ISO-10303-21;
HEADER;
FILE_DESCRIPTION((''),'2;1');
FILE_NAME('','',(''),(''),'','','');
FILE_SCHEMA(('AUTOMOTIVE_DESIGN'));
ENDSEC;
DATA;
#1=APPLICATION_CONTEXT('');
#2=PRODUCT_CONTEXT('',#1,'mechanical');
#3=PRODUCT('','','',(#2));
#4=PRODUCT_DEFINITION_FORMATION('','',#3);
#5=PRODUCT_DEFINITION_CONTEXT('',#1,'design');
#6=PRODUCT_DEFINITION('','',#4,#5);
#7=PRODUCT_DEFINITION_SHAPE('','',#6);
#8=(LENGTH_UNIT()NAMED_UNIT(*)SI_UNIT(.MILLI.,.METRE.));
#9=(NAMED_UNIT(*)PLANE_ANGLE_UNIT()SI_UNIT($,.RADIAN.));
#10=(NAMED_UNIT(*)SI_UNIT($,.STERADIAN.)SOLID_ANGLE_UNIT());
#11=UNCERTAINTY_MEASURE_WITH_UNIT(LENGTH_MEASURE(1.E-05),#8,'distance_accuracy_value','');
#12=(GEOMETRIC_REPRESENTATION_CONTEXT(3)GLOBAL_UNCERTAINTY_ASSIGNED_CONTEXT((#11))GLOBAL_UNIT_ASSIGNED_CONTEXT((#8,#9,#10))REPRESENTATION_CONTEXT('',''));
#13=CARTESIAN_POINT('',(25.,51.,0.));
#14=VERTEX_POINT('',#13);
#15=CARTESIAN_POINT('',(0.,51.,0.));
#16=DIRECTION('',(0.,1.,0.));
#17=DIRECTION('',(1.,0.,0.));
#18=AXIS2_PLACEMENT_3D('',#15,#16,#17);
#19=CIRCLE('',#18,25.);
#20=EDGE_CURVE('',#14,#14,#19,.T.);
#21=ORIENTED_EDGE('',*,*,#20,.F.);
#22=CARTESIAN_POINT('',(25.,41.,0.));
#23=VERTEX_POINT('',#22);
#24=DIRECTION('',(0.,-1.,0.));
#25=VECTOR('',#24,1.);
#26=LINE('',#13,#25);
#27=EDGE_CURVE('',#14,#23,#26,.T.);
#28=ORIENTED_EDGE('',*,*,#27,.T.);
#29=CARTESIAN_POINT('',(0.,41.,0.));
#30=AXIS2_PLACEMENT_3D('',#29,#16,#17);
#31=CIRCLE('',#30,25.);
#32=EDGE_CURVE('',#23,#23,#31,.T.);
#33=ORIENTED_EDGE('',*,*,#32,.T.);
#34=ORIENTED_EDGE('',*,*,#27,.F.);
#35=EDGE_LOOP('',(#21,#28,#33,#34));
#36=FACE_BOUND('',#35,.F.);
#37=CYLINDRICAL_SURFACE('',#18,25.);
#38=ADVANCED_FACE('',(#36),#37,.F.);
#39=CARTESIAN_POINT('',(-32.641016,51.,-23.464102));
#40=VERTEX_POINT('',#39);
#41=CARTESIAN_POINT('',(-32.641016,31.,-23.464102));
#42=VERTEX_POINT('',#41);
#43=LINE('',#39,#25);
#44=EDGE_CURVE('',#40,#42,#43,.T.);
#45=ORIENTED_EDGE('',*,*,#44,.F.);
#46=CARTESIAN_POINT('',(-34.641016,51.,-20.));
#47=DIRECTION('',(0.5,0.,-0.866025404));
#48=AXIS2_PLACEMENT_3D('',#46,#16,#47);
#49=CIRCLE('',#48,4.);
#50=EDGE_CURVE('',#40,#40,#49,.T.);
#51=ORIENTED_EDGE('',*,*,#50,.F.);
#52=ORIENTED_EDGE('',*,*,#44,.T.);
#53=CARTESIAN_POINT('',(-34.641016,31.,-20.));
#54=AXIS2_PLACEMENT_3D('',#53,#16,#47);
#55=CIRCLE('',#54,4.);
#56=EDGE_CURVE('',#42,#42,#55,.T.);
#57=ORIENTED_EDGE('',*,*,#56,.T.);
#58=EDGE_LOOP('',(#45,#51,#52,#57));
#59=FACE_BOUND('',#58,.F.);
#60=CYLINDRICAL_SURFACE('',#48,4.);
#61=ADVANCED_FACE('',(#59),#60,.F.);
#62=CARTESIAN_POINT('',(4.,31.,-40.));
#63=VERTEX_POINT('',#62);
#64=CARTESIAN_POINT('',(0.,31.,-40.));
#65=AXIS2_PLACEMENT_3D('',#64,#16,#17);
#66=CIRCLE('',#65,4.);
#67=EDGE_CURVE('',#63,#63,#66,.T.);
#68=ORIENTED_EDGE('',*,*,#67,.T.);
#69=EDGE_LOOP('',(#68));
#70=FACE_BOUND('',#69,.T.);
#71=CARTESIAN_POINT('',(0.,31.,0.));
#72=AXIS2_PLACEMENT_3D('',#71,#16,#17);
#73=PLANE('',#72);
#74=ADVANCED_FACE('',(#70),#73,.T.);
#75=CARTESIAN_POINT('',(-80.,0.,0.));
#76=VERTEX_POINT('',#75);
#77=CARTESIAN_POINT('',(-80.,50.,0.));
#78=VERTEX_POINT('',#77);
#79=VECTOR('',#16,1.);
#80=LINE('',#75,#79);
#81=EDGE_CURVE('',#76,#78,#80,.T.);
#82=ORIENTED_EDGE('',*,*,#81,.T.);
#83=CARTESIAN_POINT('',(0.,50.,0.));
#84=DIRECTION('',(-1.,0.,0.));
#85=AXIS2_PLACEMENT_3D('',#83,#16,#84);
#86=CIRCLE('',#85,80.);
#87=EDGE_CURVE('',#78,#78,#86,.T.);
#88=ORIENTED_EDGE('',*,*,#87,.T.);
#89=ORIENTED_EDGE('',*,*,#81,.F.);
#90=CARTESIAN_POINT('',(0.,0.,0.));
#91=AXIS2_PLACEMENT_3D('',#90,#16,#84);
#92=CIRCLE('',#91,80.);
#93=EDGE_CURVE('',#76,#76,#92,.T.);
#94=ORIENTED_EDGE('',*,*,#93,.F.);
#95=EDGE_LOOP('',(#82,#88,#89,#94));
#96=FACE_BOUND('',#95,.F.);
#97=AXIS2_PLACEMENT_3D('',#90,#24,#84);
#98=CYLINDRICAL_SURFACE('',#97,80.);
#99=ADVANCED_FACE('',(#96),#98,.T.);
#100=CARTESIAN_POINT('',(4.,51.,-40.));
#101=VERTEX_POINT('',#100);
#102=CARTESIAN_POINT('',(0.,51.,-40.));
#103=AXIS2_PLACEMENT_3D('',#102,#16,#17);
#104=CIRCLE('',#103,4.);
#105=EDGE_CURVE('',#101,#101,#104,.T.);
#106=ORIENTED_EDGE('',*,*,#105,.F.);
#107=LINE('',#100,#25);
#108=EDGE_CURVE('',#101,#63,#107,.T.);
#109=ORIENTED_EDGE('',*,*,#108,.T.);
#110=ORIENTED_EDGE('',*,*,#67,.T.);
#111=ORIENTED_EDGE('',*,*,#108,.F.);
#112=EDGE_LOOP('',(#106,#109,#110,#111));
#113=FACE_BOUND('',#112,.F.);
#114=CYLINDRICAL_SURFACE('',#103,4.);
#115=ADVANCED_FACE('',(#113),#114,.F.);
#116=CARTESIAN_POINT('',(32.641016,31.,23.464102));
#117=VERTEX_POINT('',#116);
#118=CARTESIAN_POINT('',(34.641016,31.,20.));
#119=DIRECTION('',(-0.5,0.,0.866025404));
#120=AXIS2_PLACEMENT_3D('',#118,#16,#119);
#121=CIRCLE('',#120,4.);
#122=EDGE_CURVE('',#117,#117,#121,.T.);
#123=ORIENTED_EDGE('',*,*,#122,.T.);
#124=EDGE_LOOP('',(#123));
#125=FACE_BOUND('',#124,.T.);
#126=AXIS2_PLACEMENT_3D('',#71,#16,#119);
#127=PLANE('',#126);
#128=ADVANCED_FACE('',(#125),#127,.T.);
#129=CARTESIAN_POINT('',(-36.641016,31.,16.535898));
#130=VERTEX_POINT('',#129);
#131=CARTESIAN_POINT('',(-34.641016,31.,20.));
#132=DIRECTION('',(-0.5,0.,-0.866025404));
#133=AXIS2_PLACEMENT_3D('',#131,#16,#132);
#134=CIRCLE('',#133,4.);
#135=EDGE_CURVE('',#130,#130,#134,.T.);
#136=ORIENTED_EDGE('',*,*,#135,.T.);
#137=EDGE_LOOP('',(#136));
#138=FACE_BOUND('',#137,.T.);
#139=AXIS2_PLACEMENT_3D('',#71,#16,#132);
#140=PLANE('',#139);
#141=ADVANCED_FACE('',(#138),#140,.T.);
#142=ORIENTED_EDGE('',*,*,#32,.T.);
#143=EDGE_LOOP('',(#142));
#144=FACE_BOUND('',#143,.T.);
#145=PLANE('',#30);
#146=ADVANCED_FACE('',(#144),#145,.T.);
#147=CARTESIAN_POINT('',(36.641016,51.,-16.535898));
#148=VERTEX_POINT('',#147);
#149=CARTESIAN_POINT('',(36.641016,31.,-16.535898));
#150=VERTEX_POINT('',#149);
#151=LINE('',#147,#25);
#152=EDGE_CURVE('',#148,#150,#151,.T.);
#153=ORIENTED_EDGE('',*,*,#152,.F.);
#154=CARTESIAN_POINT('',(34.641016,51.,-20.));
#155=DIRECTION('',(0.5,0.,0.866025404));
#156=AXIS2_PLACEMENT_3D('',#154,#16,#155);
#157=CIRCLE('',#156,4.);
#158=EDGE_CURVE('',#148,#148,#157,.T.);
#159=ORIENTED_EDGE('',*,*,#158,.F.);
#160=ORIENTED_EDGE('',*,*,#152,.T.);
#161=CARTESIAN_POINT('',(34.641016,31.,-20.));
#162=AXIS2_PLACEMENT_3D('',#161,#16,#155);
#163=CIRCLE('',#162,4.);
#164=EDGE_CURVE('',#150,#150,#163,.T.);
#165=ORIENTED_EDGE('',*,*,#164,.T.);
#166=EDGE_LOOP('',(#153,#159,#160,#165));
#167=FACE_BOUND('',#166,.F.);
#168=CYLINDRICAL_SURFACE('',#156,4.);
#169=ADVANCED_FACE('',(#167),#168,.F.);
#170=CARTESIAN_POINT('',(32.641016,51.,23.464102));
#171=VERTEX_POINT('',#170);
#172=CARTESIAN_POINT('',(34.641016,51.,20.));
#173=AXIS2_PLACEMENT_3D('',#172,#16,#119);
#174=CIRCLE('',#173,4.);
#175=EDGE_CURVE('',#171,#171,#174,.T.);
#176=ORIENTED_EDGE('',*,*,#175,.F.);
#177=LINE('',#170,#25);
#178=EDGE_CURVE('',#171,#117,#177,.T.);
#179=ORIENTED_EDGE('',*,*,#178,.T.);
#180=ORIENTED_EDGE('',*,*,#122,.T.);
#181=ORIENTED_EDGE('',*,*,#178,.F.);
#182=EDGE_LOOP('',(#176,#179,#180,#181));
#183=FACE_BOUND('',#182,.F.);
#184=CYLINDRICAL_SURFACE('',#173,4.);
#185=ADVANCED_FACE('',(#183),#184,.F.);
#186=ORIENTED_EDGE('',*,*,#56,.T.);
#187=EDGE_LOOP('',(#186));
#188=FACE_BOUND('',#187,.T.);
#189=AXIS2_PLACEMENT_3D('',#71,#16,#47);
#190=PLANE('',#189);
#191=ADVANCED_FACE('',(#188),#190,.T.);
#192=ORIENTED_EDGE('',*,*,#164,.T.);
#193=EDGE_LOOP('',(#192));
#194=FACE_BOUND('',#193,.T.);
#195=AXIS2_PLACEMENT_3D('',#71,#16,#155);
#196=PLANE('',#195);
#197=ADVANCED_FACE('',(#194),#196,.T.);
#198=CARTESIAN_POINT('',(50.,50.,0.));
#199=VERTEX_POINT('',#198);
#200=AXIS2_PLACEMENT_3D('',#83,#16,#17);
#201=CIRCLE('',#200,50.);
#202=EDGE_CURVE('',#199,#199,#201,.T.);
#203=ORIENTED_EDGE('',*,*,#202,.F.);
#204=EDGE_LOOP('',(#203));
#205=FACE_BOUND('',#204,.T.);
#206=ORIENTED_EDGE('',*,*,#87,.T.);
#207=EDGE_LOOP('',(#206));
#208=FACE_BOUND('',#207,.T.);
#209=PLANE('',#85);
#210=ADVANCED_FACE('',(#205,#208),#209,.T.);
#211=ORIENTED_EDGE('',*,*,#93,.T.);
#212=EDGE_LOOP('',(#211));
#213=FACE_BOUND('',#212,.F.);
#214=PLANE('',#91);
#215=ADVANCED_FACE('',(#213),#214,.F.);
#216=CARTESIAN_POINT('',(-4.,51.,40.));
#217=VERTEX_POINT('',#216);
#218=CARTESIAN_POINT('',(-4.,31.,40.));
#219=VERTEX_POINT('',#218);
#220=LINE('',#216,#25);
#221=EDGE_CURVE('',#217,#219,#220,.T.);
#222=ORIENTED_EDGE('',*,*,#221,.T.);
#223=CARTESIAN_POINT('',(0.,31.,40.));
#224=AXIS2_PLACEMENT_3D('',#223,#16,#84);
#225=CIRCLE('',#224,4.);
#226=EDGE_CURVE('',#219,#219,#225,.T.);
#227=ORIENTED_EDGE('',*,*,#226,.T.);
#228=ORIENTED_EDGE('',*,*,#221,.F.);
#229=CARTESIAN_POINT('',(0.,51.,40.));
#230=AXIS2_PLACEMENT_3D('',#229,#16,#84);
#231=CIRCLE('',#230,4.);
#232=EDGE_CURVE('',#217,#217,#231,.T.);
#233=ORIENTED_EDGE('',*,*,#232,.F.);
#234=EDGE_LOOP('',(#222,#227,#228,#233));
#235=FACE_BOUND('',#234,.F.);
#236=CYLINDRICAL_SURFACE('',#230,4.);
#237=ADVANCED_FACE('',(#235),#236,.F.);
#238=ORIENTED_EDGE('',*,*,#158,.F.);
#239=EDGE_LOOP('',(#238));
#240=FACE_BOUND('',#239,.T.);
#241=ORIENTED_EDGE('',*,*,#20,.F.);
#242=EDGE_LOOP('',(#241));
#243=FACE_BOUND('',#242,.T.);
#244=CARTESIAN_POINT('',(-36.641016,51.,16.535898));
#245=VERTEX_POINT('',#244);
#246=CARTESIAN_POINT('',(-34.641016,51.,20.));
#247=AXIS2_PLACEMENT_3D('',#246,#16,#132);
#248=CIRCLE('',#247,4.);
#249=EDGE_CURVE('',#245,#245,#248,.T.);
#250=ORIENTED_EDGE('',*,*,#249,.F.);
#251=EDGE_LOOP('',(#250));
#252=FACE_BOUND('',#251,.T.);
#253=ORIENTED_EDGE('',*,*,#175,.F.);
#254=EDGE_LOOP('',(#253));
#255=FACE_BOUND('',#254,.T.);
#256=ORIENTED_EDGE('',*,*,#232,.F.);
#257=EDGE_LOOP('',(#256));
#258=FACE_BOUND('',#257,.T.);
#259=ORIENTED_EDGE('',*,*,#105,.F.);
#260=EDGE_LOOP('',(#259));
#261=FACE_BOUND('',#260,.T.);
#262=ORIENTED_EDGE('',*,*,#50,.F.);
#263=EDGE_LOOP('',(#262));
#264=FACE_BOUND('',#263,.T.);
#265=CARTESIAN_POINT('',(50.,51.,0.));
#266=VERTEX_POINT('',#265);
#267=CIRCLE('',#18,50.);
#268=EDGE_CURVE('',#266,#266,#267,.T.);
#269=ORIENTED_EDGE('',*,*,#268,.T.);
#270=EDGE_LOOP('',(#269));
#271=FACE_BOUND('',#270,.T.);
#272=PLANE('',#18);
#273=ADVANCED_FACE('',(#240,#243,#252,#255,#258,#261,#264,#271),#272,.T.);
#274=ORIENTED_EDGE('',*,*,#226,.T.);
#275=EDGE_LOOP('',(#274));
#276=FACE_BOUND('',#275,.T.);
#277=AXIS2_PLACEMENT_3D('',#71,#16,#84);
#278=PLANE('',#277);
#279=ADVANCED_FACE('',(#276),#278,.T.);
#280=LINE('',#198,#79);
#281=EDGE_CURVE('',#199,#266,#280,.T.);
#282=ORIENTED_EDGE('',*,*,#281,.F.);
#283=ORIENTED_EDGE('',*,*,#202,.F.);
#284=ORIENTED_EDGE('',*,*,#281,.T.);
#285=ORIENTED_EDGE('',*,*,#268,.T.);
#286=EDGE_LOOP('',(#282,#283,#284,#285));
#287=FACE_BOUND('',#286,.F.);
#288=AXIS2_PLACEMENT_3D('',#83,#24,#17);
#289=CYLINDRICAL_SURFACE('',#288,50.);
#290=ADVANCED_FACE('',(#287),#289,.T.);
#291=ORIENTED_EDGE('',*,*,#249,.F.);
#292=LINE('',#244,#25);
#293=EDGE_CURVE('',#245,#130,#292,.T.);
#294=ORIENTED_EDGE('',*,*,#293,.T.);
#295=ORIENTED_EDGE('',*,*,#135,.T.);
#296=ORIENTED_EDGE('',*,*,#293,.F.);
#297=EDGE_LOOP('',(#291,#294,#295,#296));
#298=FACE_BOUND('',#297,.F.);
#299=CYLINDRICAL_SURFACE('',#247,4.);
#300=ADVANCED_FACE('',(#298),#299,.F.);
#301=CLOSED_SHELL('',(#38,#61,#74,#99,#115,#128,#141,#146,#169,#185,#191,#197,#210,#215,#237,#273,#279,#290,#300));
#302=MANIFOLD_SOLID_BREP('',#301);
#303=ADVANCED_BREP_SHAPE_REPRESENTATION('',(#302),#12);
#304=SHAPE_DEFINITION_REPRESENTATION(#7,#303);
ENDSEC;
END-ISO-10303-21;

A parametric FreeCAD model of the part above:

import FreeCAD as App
import Part
import Sketcher

doc = App.newDocument("Part")
body = doc.addObject("PartDesign::Body", "Body")

sketch1 = body.newObject("Sketcher::SketchObject", "Sketch")
sketch1.AttachmentSupport = (doc.getObject("XZ_Plane"), [""])
sketch1.MapMode = "FlatFace"
sketch1.addGeometry(Part.Circle(App.Vector(0, 0, 0), App.Vector(0, 0, 1), 80), False)
sketch1.addConstraint([
    Sketcher.Constraint("Coincident", 0, 3, -1, 1),
    Sketcher.Constraint("Diameter", 0, 160.0),
])
pad1 = body.newObject("PartDesign::Pad", "Pad")
pad1.Profile = sketch1
pad1.Length = 50
pad1.Reversed = True

sketch2 = body.newObject("Sketcher::SketchObject", "Sketch001")
sketch2.AttachmentSupport = (doc.getObject("XZ_Plane"), [""])
sketch2.MapMode = "FlatFace"
sketch2.AttachmentOffset = App.Placement(App.Vector(0, 0, -50), App.Rotation())
sketch2.addGeometry(Part.Circle(App.Vector(0, 0, 0), App.Vector(0, 0, 1), 50), False)
sketch2.addConstraint([
    Sketcher.Constraint("Coincident", 0, 3, -1, 1),
    Sketcher.Constraint("Diameter", 0, 100.0),
])
pad2 = body.newObject("PartDesign::Pad", "Pad001")
pad2.Profile = sketch2
pad2.Length = 1
pad2.Reversed = True

sketch3 = body.newObject("Sketcher::SketchObject", "Sketch002")
sketch3.AttachmentSupport = (doc.getObject("XZ_Plane"), [""])
sketch3.MapMode = "FlatFace"
sketch3.AttachmentOffset = App.Placement(App.Vector(0, 0, -51), App.Rotation())
sketch3.addGeometry(Part.Circle(App.Vector(0, 0, 0), App.Vector(0, 0, 1), 25), False)
sketch3.addConstraint([
    Sketcher.Constraint("Coincident", 0, 3, -1, 1),
    Sketcher.Constraint("Diameter", 0, 50.0),
])
pocket1 = body.newObject("PartDesign::Pocket", "Pocket")
pocket1.Profile = sketch3
pocket1.Length = 10
pocket1.Reversed = True

sketch4 = body.newObject("Sketcher::SketchObject", "Sketch003")
sketch4.AttachmentSupport = (doc.getObject("XZ_Plane"), [""])
sketch4.MapMode = "FlatFace"
sketch4.AttachmentOffset = App.Placement(App.Vector(0, 0, -51), App.Rotation())
sketch4.addGeometry(Part.Circle(App.Vector(0, -40, 0), App.Vector(0, 0, 1), 4), False)
sketch4.addConstraint([
    Sketcher.Constraint("PointOnObject", 0, 3, -2),
    Sketcher.Constraint("Diameter", 0, 8.0),
    Sketcher.Constraint("DistanceY", 0, 3, -1, 1, 40.0),
])
pocket2 = body.newObject("PartDesign::Pocket", "Pocket001")
pocket2.Profile = sketch4
pocket2.Length = 20
pocket2.Reversed = True
doc.recompute()

polarpattern = body.newObject("PartDesign::PolarPattern", "PolarPattern")
polarpattern.Originals = [pocket2]
polarpattern.Axis = (doc.getObject("Y_Axis"), [""])
polarpattern.Angle = 360
polarpattern.Occurrences = 6
body.Tip = polarpattern

doc.recompute()
